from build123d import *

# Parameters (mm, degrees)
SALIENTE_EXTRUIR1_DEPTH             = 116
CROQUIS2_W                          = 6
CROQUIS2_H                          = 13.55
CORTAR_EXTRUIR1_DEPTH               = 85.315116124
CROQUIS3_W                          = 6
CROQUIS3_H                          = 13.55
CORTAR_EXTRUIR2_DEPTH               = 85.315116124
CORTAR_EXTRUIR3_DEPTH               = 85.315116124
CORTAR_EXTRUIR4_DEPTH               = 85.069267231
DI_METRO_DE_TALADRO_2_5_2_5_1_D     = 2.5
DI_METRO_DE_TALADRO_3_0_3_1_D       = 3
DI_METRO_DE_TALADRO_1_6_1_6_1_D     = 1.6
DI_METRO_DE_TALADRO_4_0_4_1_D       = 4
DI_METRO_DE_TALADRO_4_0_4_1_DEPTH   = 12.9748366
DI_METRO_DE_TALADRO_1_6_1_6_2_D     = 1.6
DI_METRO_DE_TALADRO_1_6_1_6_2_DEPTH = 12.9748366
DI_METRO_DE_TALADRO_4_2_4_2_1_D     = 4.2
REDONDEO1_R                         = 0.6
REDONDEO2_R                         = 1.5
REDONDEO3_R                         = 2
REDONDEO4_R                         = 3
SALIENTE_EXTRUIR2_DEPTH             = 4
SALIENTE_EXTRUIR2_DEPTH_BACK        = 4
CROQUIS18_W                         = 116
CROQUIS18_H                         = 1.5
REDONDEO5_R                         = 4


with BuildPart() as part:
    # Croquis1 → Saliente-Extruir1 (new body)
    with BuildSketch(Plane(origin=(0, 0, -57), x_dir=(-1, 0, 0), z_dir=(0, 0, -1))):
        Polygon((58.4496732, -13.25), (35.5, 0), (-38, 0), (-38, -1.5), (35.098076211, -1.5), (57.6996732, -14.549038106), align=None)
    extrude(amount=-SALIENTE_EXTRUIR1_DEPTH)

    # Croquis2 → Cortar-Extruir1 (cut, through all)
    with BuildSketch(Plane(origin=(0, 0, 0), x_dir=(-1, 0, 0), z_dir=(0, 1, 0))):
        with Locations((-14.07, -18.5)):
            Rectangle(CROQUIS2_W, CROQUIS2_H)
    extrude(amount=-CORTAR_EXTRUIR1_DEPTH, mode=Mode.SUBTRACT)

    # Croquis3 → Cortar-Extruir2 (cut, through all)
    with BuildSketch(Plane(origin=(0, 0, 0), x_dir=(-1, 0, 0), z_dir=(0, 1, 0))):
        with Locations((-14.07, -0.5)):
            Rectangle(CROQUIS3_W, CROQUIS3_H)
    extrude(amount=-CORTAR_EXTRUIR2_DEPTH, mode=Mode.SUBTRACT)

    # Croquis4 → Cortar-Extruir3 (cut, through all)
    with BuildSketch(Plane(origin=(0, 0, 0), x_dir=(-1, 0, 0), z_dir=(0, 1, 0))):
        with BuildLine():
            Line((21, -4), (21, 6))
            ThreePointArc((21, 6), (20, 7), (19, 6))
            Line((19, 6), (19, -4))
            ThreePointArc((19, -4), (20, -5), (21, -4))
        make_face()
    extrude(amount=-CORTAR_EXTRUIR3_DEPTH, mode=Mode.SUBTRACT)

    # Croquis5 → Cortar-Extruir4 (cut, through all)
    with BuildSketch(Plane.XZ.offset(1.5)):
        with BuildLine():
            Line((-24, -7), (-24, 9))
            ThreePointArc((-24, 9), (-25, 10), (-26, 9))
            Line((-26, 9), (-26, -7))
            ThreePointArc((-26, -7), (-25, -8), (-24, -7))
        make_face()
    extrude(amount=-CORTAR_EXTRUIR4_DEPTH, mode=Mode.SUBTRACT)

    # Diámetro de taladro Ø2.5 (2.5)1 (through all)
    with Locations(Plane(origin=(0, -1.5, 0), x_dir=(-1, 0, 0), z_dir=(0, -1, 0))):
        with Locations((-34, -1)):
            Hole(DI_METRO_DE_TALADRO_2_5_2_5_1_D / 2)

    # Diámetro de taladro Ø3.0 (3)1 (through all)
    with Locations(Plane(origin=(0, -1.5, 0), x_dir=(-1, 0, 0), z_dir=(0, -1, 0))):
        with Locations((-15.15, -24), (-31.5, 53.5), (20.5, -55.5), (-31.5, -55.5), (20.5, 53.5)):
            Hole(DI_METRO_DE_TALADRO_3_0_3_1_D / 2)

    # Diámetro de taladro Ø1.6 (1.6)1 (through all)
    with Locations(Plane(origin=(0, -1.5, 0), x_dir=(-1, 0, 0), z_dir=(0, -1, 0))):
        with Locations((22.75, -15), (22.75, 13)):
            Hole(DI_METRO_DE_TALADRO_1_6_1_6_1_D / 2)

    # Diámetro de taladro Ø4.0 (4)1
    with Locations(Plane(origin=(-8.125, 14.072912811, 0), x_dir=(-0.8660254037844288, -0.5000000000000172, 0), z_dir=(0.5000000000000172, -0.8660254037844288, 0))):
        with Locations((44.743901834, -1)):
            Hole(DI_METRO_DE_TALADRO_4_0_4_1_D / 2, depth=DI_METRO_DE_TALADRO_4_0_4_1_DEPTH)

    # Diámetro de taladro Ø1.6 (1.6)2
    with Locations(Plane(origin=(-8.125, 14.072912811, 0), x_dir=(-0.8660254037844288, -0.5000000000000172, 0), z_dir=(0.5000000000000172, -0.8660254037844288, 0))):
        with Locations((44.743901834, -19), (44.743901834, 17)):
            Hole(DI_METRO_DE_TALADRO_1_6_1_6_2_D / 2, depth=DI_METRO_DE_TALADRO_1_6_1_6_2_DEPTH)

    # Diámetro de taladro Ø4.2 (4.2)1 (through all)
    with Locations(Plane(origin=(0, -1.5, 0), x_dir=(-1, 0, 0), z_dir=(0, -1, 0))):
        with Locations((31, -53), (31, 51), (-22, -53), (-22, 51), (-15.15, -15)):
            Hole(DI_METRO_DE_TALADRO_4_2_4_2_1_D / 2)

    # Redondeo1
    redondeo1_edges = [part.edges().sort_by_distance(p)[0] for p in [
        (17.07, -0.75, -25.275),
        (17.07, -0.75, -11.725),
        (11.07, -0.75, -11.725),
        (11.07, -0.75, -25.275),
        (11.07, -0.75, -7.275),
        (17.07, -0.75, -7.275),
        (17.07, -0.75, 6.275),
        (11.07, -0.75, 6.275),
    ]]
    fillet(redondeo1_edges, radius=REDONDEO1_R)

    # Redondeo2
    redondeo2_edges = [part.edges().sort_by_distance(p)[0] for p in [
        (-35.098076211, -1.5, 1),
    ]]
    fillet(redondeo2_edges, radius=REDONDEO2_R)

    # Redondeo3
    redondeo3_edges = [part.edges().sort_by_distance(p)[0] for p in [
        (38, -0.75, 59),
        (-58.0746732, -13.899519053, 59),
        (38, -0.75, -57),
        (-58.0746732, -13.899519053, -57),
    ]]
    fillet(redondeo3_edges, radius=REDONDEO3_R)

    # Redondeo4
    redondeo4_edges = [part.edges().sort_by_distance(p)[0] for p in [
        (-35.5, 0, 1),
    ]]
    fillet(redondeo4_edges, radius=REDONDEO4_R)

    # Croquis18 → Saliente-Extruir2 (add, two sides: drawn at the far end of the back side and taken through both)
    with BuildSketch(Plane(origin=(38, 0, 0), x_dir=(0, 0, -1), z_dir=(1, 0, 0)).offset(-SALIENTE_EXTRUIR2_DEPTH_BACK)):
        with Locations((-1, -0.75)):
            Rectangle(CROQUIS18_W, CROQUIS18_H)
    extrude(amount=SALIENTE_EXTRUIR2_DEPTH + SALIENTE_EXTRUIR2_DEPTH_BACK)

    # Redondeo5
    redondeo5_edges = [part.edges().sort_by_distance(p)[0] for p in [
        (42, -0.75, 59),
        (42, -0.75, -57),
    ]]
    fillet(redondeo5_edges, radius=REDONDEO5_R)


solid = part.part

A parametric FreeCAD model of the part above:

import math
import FreeCAD as App
import Part
import Sketcher
Q = App.Units.Quantity


def edges_at(feature, points):
    """Names of the edges that pass closest to the given points."""
    edges = feature.Shape.Edges
    near = lambda p: min(range(len(edges)), key=lambda i: edges[i].distToShape(Part.Vertex(*p))[0])
    return sorted({f"Edge{near(p) + 1}" for p in points})

doc = App.newDocument("Part")
body = doc.addObject("PartDesign::Body", "Body")

# Sketch on XY plane
sketch1 = body.newObject("Sketcher::SketchObject", "Sketch")
sketch1.AttachmentSupport = (doc.getObject("XY_Plane"), [""])
sketch1.MapMode = "FlatFace"
sketch1.AttachmentOffset = App.Placement(App.Vector(0, 0, -57), App.Rotation())
sketch1.addGeometry([
    Part.LineSegment(App.Vector(-58.4, -13.2, 0), App.Vector(-35.5, 0, 0)),  # 0
    Part.LineSegment(App.Vector(-35.5, 0, 0), App.Vector(38, 0, 0)),  # 1
    Part.LineSegment(App.Vector(38, 0, 0), App.Vector(38, -1.5, 0)),  # 2
    Part.LineSegment(App.Vector(38, -1.5, 0), App.Vector(-35.1, -1.5, 0)),  # 3
    Part.LineSegment(App.Vector(-35.1, -1.5, 0), App.Vector(-57.7, -14.5, 0)),  # 4
    Part.LineSegment(App.Vector(-57.7, -14.5, 0), App.Vector(-58.4, -13.2, 0)),  # 5
], False)
sketch1.addConstraint([
    Sketcher.Constraint("Coincident", 0, 2, 1, 1),
    Sketcher.Constraint("Coincident", 1, 2, 2, 1),
    Sketcher.Constraint("Coincident", 2, 2, 3, 1),
    Sketcher.Constraint("Coincident", 3, 2, 4, 1),
    Sketcher.Constraint("Coincident", 4, 2, 5, 1),
    Sketcher.Constraint("Coincident", 5, 2, 0, 1),
    Sketcher.Constraint("Horizontal", 1),
    Sketcher.Constraint("Vertical", 2),
    Sketcher.Constraint("Horizontal", 3),
    Sketcher.Constraint("PointOnObject", 0, 2, -1),
    Sketcher.Constraint("Parallel", 0, 4),
    Sketcher.Constraint("Perpendicular", 4, 5),
    Sketcher.Constraint("Angle", 0, Q("30 deg")),
    Sketcher.Constraint("DistanceX", 1, 1, 1, 2, 73.5),
    Sketcher.Constraint("DistanceY", 2, 2, 2, 1, 1.5),
    Sketcher.Constraint("DistanceX", -1, 1, 1, 2, 38.0),
    Sketcher.Constraint("Distance", 0, 26.5),
    Sketcher.Constraint("Distance", 5, 1.5),
])
pad1 = body.newObject("PartDesign::Pad", "Pad")
pad1.Profile = sketch1
pad1.Length = 116

# Sketch on XZ plane
sketch2 = body.newObject("Sketcher::SketchObject", "Sketch001")
sketch2.AttachmentSupport = (doc.getObject("XZ_Plane"), [""])
sketch2.MapMode = "FlatFace"
sketch2.addGeometry([
    Part.LineSegment(App.Vector(17, -12, 0), App.Vector(17, -25, 0)),
    Part.LineSegment(App.Vector(17, -25, 0), App.Vector(11, -25, 0)),
    Part.LineSegment(App.Vector(11, -25, 0), App.Vector(11, -12, 0)),
    Part.LineSegment(App.Vector(11, -12, 0), App.Vector(17, -12, 0)),
], False)
sketch2.addConstraint([
    Sketcher.Constraint("Coincident", 0, 2, 1, 1),
    Sketcher.Constraint("Coincident", 1, 2, 2, 1),
    Sketcher.Constraint("Coincident", 2, 2, 3, 1),
    Sketcher.Constraint("Coincident", 3, 2, 0, 1),
    Sketcher.Constraint("Vertical", 0),
    Sketcher.Constraint("Horizontal", 1),
    Sketcher.Constraint("Vertical", 2),
    Sketcher.Constraint("Horizontal", 3),
    Sketcher.Constraint("DistanceX", 1, 2, 1, 1, 6.0),
    Sketcher.Constraint("DistanceY", 0, 2, 0, 1, 13.55),
    Sketcher.Constraint("DistanceX", -1, 1, 0, 2, 17.07),
    Sketcher.Constraint("DistanceY", 0, 2, -1, 1, 25.275),
])
pocket1 = body.newObject("PartDesign::Pocket", "Pocket")
pocket1.Profile = sketch2
pocket1.Type = "ThroughAll"
pocket1.Reversed = True

# Sketch on XZ plane
sketch3 = body.newObject("Sketcher::SketchObject", "Sketch002")
sketch3.AttachmentSupport = (doc.getObject("XZ_Plane"), [""])
sketch3.MapMode = "FlatFace"
sketch3.addGeometry([
    Part.LineSegment(App.Vector(17, 6, 0), App.Vector(17, -7, 0)),
    Part.LineSegment(App.Vector(17, -7, 0), App.Vector(11, -7, 0)),
    Part.LineSegment(App.Vector(11, -7, 0), App.Vector(11, 6, 0)),
    Part.LineSegment(App.Vector(11, 6, 0), App.Vector(17, 6, 0)),
], False)
sketch3.addConstraint([
    Sketcher.Constraint("Coincident", 0, 2, 1, 1),
    Sketcher.Constraint("Coincident", 1, 2, 2, 1),
    Sketcher.Constraint("Coincident", 2, 2, 3, 1),
    Sketcher.Constraint("Coincident", 3, 2, 0, 1),
    Sketcher.Constraint("Vertical", 0),
    Sketcher.Constraint("Horizontal", 1),
    Sketcher.Constraint("Vertical", 2),
    Sketcher.Constraint("Horizontal", 3),
    Sketcher.Constraint("DistanceX", 1, 2, 1, 1, 6.0),
    Sketcher.Constraint("DistanceY", 0, 2, 0, 1, 13.55),
    Sketcher.Constraint("DistanceX", -1, 1, 0, 2, 17.07),
    Sketcher.Constraint("DistanceY", 0, 2, -1, 1, 7.275),
])
pocket2 = body.newObject("PartDesign::Pocket", "Pocket001")
pocket2.Profile = sketch3
pocket2.Type = "ThroughAll"
pocket2.Reversed = True

# Sketch on XZ plane
sketch4 = body.newObject("Sketcher::SketchObject", "Sketch003")
sketch4.AttachmentSupport = (doc.getObject("XZ_Plane"), [""])
sketch4.MapMode = "FlatFace"
sketch4.addGeometry([
    Part.LineSegment(App.Vector(-21, -4, 0), App.Vector(-21, 6, 0)),
    Part.ArcOfCircle(Part.Circle(App.Vector(-20, 6, 0), App.Vector(0, 0, 1), 1), math.radians(0), math.radians(180)),
    Part.LineSegment(App.Vector(-19, 6, 0), App.Vector(-19, -4, 0)),
    Part.ArcOfCircle(Part.Circle(App.Vector(-20, -4, 0), App.Vector(0, 0, 1), 1), math.radians(180), math.radians(360)),
], False)
sketch4.addConstraint([
    Sketcher.Constraint("Tangent", 0, 2, 1, 2),
    Sketcher.Constraint("Tangent", 1, 1, 2, 1),
    Sketcher.Constraint("Tangent", 2, 2, 3, 2),
    Sketcher.Constraint("Tangent", 3, 1, 0, 1),
    Sketcher.Constraint("Vertical", 0),
    Sketcher.Constraint("Vertical", 2),
    Sketcher.Constraint("Radius", 1, 1.0),
    Sketcher.Constraint("DistanceY", 0, 1, 0, 2, 10.0),
    Sketcher.Constraint("DistanceX", 1, 3, -1, 1, 20.0),
    Sketcher.Constraint("DistanceY", -1, 1, 1, 3, 6.0),
])
pocket3 = body.newObject("PartDesign::Pocket", "Pocket002")
pocket3.Profile = sketch4
pocket3.Type = "ThroughAll"
pocket3.Reversed = True

# Sketch on XZ plane
sketch5 = body.newObject("Sketcher::SketchObject", "Sketch004")
sketch5.AttachmentSupport = (doc.getObject("XZ_Plane"), [""])
sketch5.MapMode = "FlatFace"
sketch5.AttachmentOffset = App.Placement(App.Vector(0, 0, 1.5), App.Rotation())
sketch5.addGeometry([
    Part.LineSegment(App.Vector(-24, -7, 0), App.Vector(-24, 9, 0)),
    Part.ArcOfCircle(Part.Circle(App.Vector(-25, 9, 0), App.Vector(0, 0, 1), 1), math.radians(0), math.radians(180)),
    Part.LineSegment(App.Vector(-26, 9, 0), App.Vector(-26, -7, 0)),
    Part.ArcOfCircle(Part.Circle(App.Vector(-25, -7, 0), App.Vector(0, 0, 1), 1), math.radians(180), math.radians(360)),
], False)
sketch5.addConstraint([
    Sketcher.Constraint("Tangent", 0, 2, 1, 1),
    Sketcher.Constraint("Tangent", 1, 2, 2, 1),
    Sketcher.Constraint("Tangent", 2, 2, 3, 1),
    Sketcher.Constraint("Tangent", 3, 2, 0, 1),
    Sketcher.Constraint("Vertical", 0),
    Sketcher.Constraint("Vertical", 2),
    Sketcher.Constraint("Radius", 1, 1.0),
    Sketcher.Constraint("DistanceY", 0, 1, 0, 2, 16.0),
    Sketcher.Constraint("DistanceX", 1, 3, -1, 1, 25.0),
    Sketcher.Constraint("DistanceY", -1, 1, 1, 3, 9.0),
])
pocket4 = body.newObject("PartDesign::Pocket", "Pocket003")
pocket4.Profile = sketch5
pocket4.Type = "ThroughAll"

# Sketch on XZ plane
sketch6 = body.newObject("Sketcher::SketchObject", "Sketch005")
sketch6.AttachmentSupport = (doc.getObject("XZ_Plane"), [""])
sketch6.MapMode = "FlatFace"
sketch6.AttachmentOffset = App.Placement(App.Vector(0, 0, 1.5), App.Rotation())
sketch6.addGeometry(Part.Circle(App.Vector(34, 1, 0), App.Vector(0, 0, 1), 1.2), False)
sketch6.addConstraint([
    Sketcher.Constraint("Diameter", 0, 2.5),
    Sketcher.Constraint("DistanceX", -1, 1, 0, 3, 34.0),
    Sketcher.Constraint("DistanceY", -1, 1, 0, 3, 1.0),
])
doc.recompute()
hole = body.newObject("PartDesign::Hole", "Hole")
hole.Profile = sketch6
hole.ThreadType = "None"
hole.Diameter = 2.5
hole.DepthType = "ThroughAll"

# Sketch on XZ plane
sketch7 = body.newObject("Sketcher::SketchObject", "Sketch006")
sketch7.AttachmentSupport = (doc.getObject("XZ_Plane"), [""])
sketch7.MapMode = "FlatFace"
sketch7.AttachmentOffset = App.Placement(App.Vector(0, 0, 1.5), App.Rotation())
sketch7.addGeometry([
    Part.Circle(App.Vector(15.2, 24, 0), App.Vector(0, 0, 1), 1.5),  # 0
    Part.Circle(App.Vector(31.5, -53.5, 0), App.Vector(0, 0, 1), 1.5),  # 1
    Part.Circle(App.Vector(-20.5, 55.5, 0), App.Vector(0, 0, 1), 1.5),  # 2
    Part.Circle(App.Vector(31.5, 55.5, 0), App.Vector(0, 0, 1), 1.5),  # 3
    Part.Circle(App.Vector(-20.5, -53.5, 0), App.Vector(0, 0, 1), 1.5),  # 4
], False)
sketch7.addConstraint([
    Sketcher.Constraint("Equal", 0, 1),
    Sketcher.Constraint("Equal", 1, 2),
    Sketcher.Constraint("Equal", 2, 3),
    Sketcher.Constraint("Equal", 3, 4),
    Sketcher.Constraint("Horizontal", 2, 3, 3, 3),
    Sketcher.Constraint("Horizontal", 1, 3, 4, 3),
    Sketcher.Constraint("Vertical", 1, 3, 3, 3),
    Sketcher.Constraint("Vertical", 2, 3, 4, 3),
    Sketcher.Constraint("Diameter", 0, 3.0),
    Sketcher.Constraint("DistanceY", -1, 1, 0, 3, 24.0),
    Sketcher.Constraint("DistanceX", 2, 3, 1, 3, 52.0),
    Sketcher.Constraint("DistanceY", 1, 3, 2, 3, 109.0),
    Sketcher.Constraint("DistanceX", -1, 1, 1, 3, 31.5),
    Sketcher.Constraint("DistanceY", 1, 3, -1, 1, 53.5),
    Sketcher.Constraint("DistanceX", -1, 1, 0, 3, 15.15),
])
doc.recompute()
hole2 = body.newObject("PartDesign::Hole", "Hole001")
hole2.Profile = sketch7
hole2.ThreadType = "None"
hole2.Diameter = 3
hole2.DepthType = "ThroughAll"

# Sketch on XZ plane
sketch8 = body.newObject("Sketcher::SketchObject", "Sketch007")
sketch8.AttachmentSupport = (doc.getObject("XZ_Plane"), [""])
sketch8.MapMode = "FlatFace"
sketch8.AttachmentOffset = App.Placement(App.Vector(0, 0, 1.5), App.Rotation())
sketch8.addGeometry([
    Part.Circle(App.Vector(-22.8, 15, 0), App.Vector(0, 0, 1), 0.8),
    Part.Circle(App.Vector(-22.8, -13, 0), App.Vector(0, 0, 1), 0.8),
], False)
sketch8.addConstraint([
    Sketcher.Constraint("Equal", 0, 1),
    Sketcher.Constraint("Vertical", 0, 3, 1, 3),
    Sketcher.Constraint("Diameter", 0, 1.6),
    Sketcher.Constraint("DistanceY", -1, 1, 0, 3, 15.0),
    Sketcher.Constraint("DistanceY", 1, 3, -1, 1, 13.0),
    Sketcher.Constraint("DistanceX", 0, 3, -1, 1, 22.75),
])
doc.recompute()
hole3 = body.newObject("PartDesign::Hole", "Hole002")
hole3.Profile = sketch8
hole3.ThreadType = "None"
hole3.Diameter = 1.6
hole3.DepthType = "ThroughAll"

# Sketch on an angled plane
sketch9 = body.newObject("Sketcher::SketchObject", "Sketch008")
sketch9.Placement = App.Placement(App.Vector(-8.125, 14.072913, 0), App.Rotation(App.Vector(-0.866025404, -0.5, 0), App.Vector(0, 0, -1), App.Vector(0.5, -0.866025404, 0), "ZXY"))
sketch9.addGeometry(Part.Circle(App.Vector(44.7, -1, 0), App.Vector(0, 0, 1), 2), False)
sketch9.addConstraint([
    Sketcher.Constraint("Diameter", 0, 4.0),
    Sketcher.Constraint("DistanceY", 0, 3, -1, 1, 1.0),
    Sketcher.Constraint("DistanceX", -1, 1, 0, 3, 44.743902),
])
doc.recompute()
hole4 = body.newObject("PartDesign::Hole", "Hole003")
hole4.Profile = sketch9
hole4.ThreadType = "None"
hole4.Diameter = 4
hole4.DepthType = "Dimension"
hole4.Depth = 12.974837
hole4.DrillPoint = "Flat"

# Sketch on an angled plane
sketch10 = body.newObject("Sketcher::SketchObject", "Sketch009")
sketch10.Placement = App.Placement(App.Vector(-8.125, 14.072913, 0), App.Rotation(App.Vector(-0.866025404, -0.5, 0), App.Vector(0, 0, -1), App.Vector(0.5, -0.866025404, 0), "ZXY"))
sketch10.addGeometry([
    Part.Circle(App.Vector(44.7, -19, 0), App.Vector(0, 0, 1), 0.8),
    Part.Circle(App.Vector(44.7, 17, 0), App.Vector(0, 0, 1), 0.8),
], False)
sketch10.addConstraint([
    Sketcher.Constraint("Equal", 0, 1),
    Sketcher.Constraint("Vertical", 0, 3, 1, 3),
    Sketcher.Constraint("Diameter", 0, 1.6),
    Sketcher.Constraint("DistanceY", 0, 3, -1, 1, 19.0),
    Sketcher.Constraint("DistanceY", -1, 1, 1, 3, 17.0),
    Sketcher.Constraint("DistanceX", -1, 1, 0, 3, 44.743902),
])
doc.recompute()
hole5 = body.newObject("PartDesign::Hole", "Hole004")
hole5.Profile = sketch10
hole5.ThreadType = "None"
hole5.Diameter = 1.6
hole5.DepthType = "Dimension"
hole5.Depth = 12.974837
hole5.DrillPoint = "Flat"

# Sketch on XZ plane
sketch11 = body.newObject("Sketcher::SketchObject", "Sketch010")
sketch11.AttachmentSupport = (doc.getObject("XZ_Plane"), [""])
sketch11.MapMode = "FlatFace"
sketch11.AttachmentOffset = App.Placement(App.Vector(0, 0, 1.5), App.Rotation())
sketch11.addGeometry([
    Part.Circle(App.Vector(-31, 53, 0), App.Vector(0, 0, 1), 2.1),  # 0
    Part.Circle(App.Vector(-31, -51, 0), App.Vector(0, 0, 1), 2.1),  # 1
    Part.Circle(App.Vector(22, 53, 0), App.Vector(0, 0, 1), 2.1),  # 2
    Part.Circle(App.Vector(22, -51, 0), App.Vector(0, 0, 1), 2.1),  # 3
    Part.Circle(App.Vector(15.2, 15, 0), App.Vector(0, 0, 1), 2.1),  # 4
], False)
sketch11.addConstraint([
    Sketcher.Constraint("Equal", 0, 1),
    Sketcher.Constraint("Equal", 1, 2),
    Sketcher.Constraint("Equal", 2, 3),
    Sketcher.Constraint("Equal", 3, 4),
    Sketcher.Constraint("Horizontal", 0, 3, 2, 3),
    Sketcher.Constraint("Horizontal", 1, 3, 3, 3),
    Sketcher.Constraint("Vertical", 0, 3, 1, 3),
    Sketcher.Constraint("Vertical", 2, 3, 3, 3),
    Sketcher.Constraint("Diameter", 0, 4.2),
    Sketcher.Constraint("DistanceX", 0, 3, -1, 1, 31.0),
    Sketcher.Constraint("DistanceY", -1, 1, 0, 3, 53.0),
    Sketcher.Constraint("DistanceY", 1, 3, -1, 1, 51.0),
    Sketcher.Constraint("DistanceX", -1, 1, 2, 3, 22.0),
    Sketcher.Constraint("DistanceY", -1, 1, 4, 3, 15.0),
    Sketcher.Constraint("DistanceX", -1, 1, 4, 3, 15.15),
])
doc.recompute()
hole6 = body.newObject("PartDesign::Hole", "Hole005")
hole6.Profile = sketch11
hole6.ThreadType = "None"
hole6.Diameter = 4.2
hole6.DepthType = "ThroughAll"
doc.recompute()

fillet = body.newObject("PartDesign::Fillet", "Fillet")
fillet.Base = (hole6, edges_at(hole6, [
    (17.07, -0.75, -25.275),
    (17.07, -0.75, -11.725),
    (11.07, -0.75, -11.725),
    (11.07, -0.75, -25.275),
    (11.07, -0.75, -7.275),
    (17.07, -0.75, -7.275),
    (17.07, -0.75, 6.275),
    (11.07, -0.75, 6.275),
]))
fillet.Radius = 0.6
doc.recompute()

fillet2 = body.newObject("PartDesign::Fillet", "Fillet001")
fillet2.Base = (fillet, edges_at(fillet, [(-35.098, -1.5, 1)]))
fillet2.Radius = 1.5
doc.recompute()

fillet3 = body.newObject("PartDesign::Fillet", "Fillet002")
fillet3.Base = (fillet2, edges_at(fillet2, [
    (38, -0.75, 59),
    (-58.075, -13.9, 59),
    (38, -0.75, -57),
    (-58.075, -13.9, -57),
]))
fillet3.Radius = 2
doc.recompute()

fillet4 = body.newObject("PartDesign::Fillet", "Fillet003")
fillet4.Base = (fillet3, edges_at(fillet3, [(-35.5, 0, 1)]))
fillet4.Radius = 3

# Sketch on YZ plane
sketch12 = body.newObject("Sketcher::SketchObject", "Sketch011")
sketch12.AttachmentSupport = (doc.getObject("YZ_Plane"), [""])
sketch12.MapMode = "FlatFace"
sketch12.AttachmentOffset = App.Placement(App.Vector(0, 0, 38), App.Rotation())
sketch12.addGeometry([
    Part.LineSegment(App.Vector(0, 59, 0), App.Vector(-1.5, 59, 0)),
    Part.LineSegment(App.Vector(-1.5, 59, 0), App.Vector(-1.5, -57, 0)),
    Part.LineSegment(App.Vector(-1.5, -57, 0), App.Vector(0, -57, 0)),
    Part.LineSegment(App.Vector(0, -57, 0), App.Vector(0, 59, 0)),
], False)
sketch12.addConstraint([
    Sketcher.Constraint("Coincident", 0, 2, 1, 1),
    Sketcher.Constraint("Coincident", 1, 2, 2, 1),
    Sketcher.Constraint("Coincident", 2, 2, 3, 1),
    Sketcher.Constraint("Coincident", 3, 2, 0, 1),
    Sketcher.Constraint("Horizontal", 0),
    Sketcher.Constraint("Vertical", 1),
    Sketcher.Constraint("Horizontal", 2),
    Sketcher.Constraint("Vertical", 3),
    Sketcher.Constraint("PointOnObject", 2, 2, -2),
    Sketcher.Constraint("DistanceY", 1, 2, 1, 1, 116.0),
    Sketcher.Constraint("DistanceX", 0, 2, 0, 1, 1.5),
    Sketcher.Constraint("DistanceY", -1, 1, 0, 2, 59.0),
])
pad2 = body.newObject("PartDesign::Pad", "Pad001")
pad2.Profile = sketch12
pad2.Type = "TwoLengths"
pad2.Length = 4
pad2.Length2 = 4
doc.recompute()

fillet5 = body.newObject("PartDesign::Fillet", "Fillet004")
fillet5.Base = (pad2, edges_at(pad2, [(42, -0.75, 59), (42, -0.75, -57)]))
fillet5.Radius = 4

doc.recompute()
